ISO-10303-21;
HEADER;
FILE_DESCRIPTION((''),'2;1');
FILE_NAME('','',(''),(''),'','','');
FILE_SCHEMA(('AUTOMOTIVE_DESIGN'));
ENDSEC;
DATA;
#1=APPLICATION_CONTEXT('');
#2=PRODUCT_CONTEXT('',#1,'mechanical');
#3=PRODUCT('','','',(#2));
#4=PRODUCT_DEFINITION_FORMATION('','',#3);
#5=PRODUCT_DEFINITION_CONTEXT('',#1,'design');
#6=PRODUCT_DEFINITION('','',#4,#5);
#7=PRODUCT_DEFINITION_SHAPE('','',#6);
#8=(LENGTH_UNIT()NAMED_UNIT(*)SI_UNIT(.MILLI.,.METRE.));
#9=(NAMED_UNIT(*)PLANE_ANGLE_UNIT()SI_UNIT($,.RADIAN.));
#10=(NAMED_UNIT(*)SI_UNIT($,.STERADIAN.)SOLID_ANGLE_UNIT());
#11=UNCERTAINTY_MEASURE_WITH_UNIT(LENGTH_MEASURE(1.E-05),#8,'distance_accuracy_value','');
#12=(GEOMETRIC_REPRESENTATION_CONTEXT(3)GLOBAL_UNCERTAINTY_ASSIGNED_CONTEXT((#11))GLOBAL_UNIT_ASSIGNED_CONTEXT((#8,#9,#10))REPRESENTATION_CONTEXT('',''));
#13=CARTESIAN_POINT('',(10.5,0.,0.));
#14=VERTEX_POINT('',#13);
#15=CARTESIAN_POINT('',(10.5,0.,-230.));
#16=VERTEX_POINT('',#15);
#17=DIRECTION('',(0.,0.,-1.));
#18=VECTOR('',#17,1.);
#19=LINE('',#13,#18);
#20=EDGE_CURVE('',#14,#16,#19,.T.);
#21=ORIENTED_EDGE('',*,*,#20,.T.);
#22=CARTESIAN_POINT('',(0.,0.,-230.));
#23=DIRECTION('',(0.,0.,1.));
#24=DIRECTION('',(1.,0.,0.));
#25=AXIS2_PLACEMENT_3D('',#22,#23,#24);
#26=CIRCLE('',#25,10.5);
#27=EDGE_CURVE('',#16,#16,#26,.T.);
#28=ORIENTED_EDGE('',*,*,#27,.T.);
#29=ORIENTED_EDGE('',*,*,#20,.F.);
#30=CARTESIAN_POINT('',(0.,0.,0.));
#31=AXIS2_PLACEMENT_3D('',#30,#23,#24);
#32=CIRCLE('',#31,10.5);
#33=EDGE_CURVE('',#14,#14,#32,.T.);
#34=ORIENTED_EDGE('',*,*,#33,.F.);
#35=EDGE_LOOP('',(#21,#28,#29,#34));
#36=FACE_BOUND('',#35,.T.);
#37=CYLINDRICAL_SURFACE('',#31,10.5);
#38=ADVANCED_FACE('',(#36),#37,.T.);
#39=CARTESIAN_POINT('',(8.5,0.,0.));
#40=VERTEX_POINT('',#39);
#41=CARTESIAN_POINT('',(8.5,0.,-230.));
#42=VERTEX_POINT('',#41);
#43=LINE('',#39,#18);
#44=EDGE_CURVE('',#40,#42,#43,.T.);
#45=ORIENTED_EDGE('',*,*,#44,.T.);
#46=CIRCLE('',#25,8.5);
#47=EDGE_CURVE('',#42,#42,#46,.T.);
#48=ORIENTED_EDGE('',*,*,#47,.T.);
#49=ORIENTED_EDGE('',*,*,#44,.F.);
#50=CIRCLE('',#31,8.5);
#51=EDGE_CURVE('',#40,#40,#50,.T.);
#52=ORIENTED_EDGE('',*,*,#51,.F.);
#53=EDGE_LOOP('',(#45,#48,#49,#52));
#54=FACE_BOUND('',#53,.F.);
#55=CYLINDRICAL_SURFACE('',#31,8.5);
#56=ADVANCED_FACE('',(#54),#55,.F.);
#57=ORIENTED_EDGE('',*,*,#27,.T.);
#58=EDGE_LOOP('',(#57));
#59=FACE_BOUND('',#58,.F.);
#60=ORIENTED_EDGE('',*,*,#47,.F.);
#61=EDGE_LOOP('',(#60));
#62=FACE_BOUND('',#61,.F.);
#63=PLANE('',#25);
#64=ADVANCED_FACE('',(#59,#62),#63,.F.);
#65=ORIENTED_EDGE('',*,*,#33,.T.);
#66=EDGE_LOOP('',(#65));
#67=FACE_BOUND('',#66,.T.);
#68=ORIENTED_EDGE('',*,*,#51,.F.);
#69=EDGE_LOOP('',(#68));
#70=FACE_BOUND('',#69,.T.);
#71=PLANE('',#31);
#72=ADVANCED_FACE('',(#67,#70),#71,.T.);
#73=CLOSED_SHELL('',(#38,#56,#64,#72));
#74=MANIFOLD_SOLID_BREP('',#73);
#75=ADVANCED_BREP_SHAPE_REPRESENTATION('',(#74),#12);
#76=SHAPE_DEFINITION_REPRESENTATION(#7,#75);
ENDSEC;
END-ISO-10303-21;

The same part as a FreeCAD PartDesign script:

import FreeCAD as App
import Part
import Sketcher

doc = App.newDocument("Part")
body = doc.addObject("PartDesign::Body", "Body")

# Sketch on XY plane
sketch1 = body.newObject("Sketcher::SketchObject", "Sketch")
sketch1.AttachmentSupport = (doc.getObject("XY_Plane"), [""])
sketch1.MapMode = "FlatFace"
sketch1.addGeometry([
    Part.Circle(App.Vector(0, 0, 0), App.Vector(0, 0, 1), 10),
    Part.Circle(App.Vector(0, 0, 0), App.Vector(0, 0, 1), 8),
], False)
sketch1.addConstraint([
    Sketcher.Constraint("Coincident", 0, 3, -1, 1),
    Sketcher.Constraint("Coincident", 1, 3, -1, 1),
    Sketcher.Constraint("Diameter", 0, 21.0),
    Sketcher.Constraint("Diameter", 1, 17.0),
])
pad1 = body.newObject("PartDesign::Pad", "Pad")
pad1.Profile = sketch1
pad1.Length = 230
pad1.Reversed = True

doc.recompute()
